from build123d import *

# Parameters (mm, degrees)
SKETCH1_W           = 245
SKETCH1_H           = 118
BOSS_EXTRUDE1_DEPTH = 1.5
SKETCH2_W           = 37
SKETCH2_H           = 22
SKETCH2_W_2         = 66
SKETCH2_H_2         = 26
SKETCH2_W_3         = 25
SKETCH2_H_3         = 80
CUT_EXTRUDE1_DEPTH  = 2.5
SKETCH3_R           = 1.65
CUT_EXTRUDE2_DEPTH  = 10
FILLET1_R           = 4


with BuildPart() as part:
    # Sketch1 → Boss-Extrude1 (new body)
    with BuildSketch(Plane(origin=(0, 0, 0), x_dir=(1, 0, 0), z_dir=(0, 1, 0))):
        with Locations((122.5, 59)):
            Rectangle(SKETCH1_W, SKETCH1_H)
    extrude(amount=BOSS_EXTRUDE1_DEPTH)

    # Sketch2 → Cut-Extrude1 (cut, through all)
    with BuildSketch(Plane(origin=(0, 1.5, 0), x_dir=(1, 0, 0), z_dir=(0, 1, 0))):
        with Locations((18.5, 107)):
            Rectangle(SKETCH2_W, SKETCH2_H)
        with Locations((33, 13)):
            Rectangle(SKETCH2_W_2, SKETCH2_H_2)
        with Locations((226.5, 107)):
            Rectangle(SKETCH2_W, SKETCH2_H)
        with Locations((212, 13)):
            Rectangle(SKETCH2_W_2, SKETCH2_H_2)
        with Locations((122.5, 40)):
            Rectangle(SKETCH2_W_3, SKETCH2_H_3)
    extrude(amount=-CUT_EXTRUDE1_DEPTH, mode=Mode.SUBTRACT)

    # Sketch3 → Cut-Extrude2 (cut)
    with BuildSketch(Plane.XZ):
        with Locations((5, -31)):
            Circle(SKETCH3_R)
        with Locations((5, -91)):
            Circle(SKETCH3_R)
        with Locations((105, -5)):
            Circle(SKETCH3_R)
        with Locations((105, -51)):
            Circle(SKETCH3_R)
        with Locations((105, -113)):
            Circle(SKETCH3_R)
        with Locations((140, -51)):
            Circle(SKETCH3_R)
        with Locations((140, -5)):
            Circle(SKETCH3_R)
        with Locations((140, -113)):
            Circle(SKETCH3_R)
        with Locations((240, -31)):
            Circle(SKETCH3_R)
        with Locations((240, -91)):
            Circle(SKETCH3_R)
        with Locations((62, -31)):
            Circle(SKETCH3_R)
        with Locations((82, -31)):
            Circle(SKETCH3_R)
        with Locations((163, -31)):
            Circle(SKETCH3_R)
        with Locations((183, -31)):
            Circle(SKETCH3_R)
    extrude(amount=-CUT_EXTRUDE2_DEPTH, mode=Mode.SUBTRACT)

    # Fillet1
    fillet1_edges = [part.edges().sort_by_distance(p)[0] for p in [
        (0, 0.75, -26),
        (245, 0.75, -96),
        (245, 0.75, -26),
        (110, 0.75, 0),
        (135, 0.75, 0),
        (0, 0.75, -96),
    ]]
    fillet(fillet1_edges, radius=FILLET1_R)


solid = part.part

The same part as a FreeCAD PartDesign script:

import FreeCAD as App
import Part
import Sketcher
from FreeCAD import Vector
Q = App.Units.Quantity


def edges_at(feature, points):
    """Names of the edges that pass closest to the given points."""
    edges = feature.Shape.Edges
    near = lambda p: min(range(len(edges)), key=lambda i: edges[i].distToShape(Part.Vertex(*p))[0])
    return sorted({f"Edge{near(p) + 1}" for p in points})


def add_polygon(sketch, points):
    """Adds a closed chain of lines whose ends are joined by coincident constraints."""
    first, n = sketch.GeometryCount, len(points)
    for a, b in zip(points, points[1:] + points[:1]):
        sketch.addGeometry(Part.LineSegment(App.Vector(*a, 0), App.Vector(*b, 0)), False)
    for i in range(n):
        sketch.addConstraint(Sketcher.Constraint("Coincident", first + i, 2, first + (i + 1) % n, 1))

doc = App.newDocument("Part")
body = doc.addObject("PartDesign::Body", "Body")

sketch1 = doc.addObject("Sketcher::SketchObject", "Sketch")
body.addObject(sketch1)
sketch1.AttachmentSupport = (doc.XZ_Plane, [""])
sketch1.MapMode = "FlatFace"
add_polygon(sketch1, [(0, -118), (0, 0), (245, 0), (245, -118)])
sketch1.addConstraint([
    Sketcher.Constraint("Vertical", 0),
    Sketcher.Constraint("Horizontal", 1),
    Sketcher.Constraint("Vertical", 2),
    Sketcher.Constraint("Horizontal", 3),
    Sketcher.Constraint("Coincident", 0, 2, -1, 1),
    Sketcher.Constraint("DistanceX", 1, 1, 1, 2, Q("245 mm")),
    Sketcher.Constraint("DistanceY", 0, 1, 0, 2, Q("118 mm")),
])
pad1 = doc.addObject("PartDesign::Pad", "Pad")
body.addObject(pad1)
pad1.Profile = sketch1
pad1.Length = 1.5
pad1.Reversed = True

sketch2 = doc.addObject("Sketcher::SketchObject", "Sketch001")
body.addObject(sketch2)
sketch2.AttachmentSupport = (doc.XZ_Plane, [""])
sketch2.MapMode = "FlatFace"
sketch2.AttachmentOffset = App.Placement(Vector(0, 0, -1.5), App.Rotation())
add_polygon(sketch2, [(0, -118), (0, -96), (37, -96), (37, -118)])
add_polygon(sketch2, [(0, -26), (0, 0), (66, 0), (66, -26)])
add_polygon(sketch2, [(208, -118), (208, -96), (245, -96), (245, -118)])
add_polygon(sketch2, [(179, -26), (179, 0), (245, 0), (245, -26)])
add_polygon(sketch2, [(110, -80), (110, 0), (135, 0), (135, -80)])
sketch2.addConstraint([
    Sketcher.Constraint("Vertical", 0),
    Sketcher.Constraint("Horizontal", 1),
    Sketcher.Constraint("Vertical", 2),
    Sketcher.Constraint("Horizontal", 3),
    Sketcher.Constraint("Vertical", 4),
    Sketcher.Constraint("Horizontal", 5),
    Sketcher.Constraint("Vertical", 6),
    Sketcher.Constraint("Horizontal", 7),
    Sketcher.Constraint("Vertical", 8),
    Sketcher.Constraint("Horizontal", 9),
    Sketcher.Constraint("Vertical", 10),
    Sketcher.Constraint("Horizontal", 11),
    Sketcher.Constraint("Vertical", 12),
    Sketcher.Constraint("Horizontal", 13),
    Sketcher.Constraint("Vertical", 14),
    Sketcher.Constraint("Horizontal", 15),
    Sketcher.Constraint("Vertical", 16),
    Sketcher.Constraint("Horizontal", 17),
    Sketcher.Constraint("Vertical", 18),
    Sketcher.Constraint("Horizontal", 19),
    Sketcher.Constraint("Coincident", 4, 2, -1, 1),
    Sketcher.Constraint("PointOnObject", 0, 2, -2),
    Sketcher.Constraint("PointOnObject", 12, 2, -1),
    Sketcher.Constraint("PointOnObject", 16, 2, -1),
    Sketcher.Constraint("Horizontal", 1, 2, 8, 2),
    Sketcher.Constraint("Horizontal", 3, 2, 10, 2),
    Sketcher.Constraint("Horizontal", 7, 2, 14, 2),
    Sketcher.Constraint("Vertical", 10, 2, 13, 2),
    Sketcher.Constraint("Equal", 3, 9),
    Sketcher.Constraint("Equal", 7, 13),
    Sketcher.Constraint("DistanceX", 1, 1, 1, 2, Q("37 mm")),
    Sketcher.Constraint("DistanceX", 5, 1, 5, 2, Q("66 mm")),
    Sketcher.Constraint("DistanceX", 17, 1, 17, 2, Q("25 mm")),
    Sketcher.Constraint("DistanceY", 0, 1, 0, 2, Q("22 mm")),
    Sketcher.Constraint("DistanceY", 4, 1, 4, 2, Q("26 mm")),
    Sketcher.Constraint("DistanceY", 16, 1, 16, 2, Q("80 mm")),
    Sketcher.Constraint("DistanceY", 0, 2, -1, 1, Q("96 mm")),
    Sketcher.Constraint("DistanceX", -1, 1, 8, 2, Q("208 mm")),
    Sketcher.Constraint("DistanceX", -1, 1, 16, 2, Q("110 mm")),
])
pocket1 = doc.addObject("PartDesign::Pocket", "Pocket")
body.addObject(pocket1)
pocket1.Profile = sketch2
pocket1.Type = "ThroughAll"
pocket1.Reversed = True

sketch3 = doc.addObject("Sketcher::SketchObject", "Sketch002")
body.addObject(sketch3)
sketch3.AttachmentSupport = (doc.XZ_Plane, [""])
sketch3.MapMode = "FlatFace"
sketch3.addGeometry([
    Part.Circle(Vector(5, -31, 0), Vector(0, 0, 1), 1.6),
    Part.Circle(Vector(5, -91, 0), Vector(0, 0, 1), 1.6),
    Part.Circle(Vector(105, -5, 0), Vector(0, 0, 1), 1.6),
    Part.Circle(Vector(105, -51, 0), Vector(0, 0, 1), 1.6),
    Part.Circle(Vector(105, -113, 0), Vector(0, 0, 1), 1.6),
    Part.Circle(Vector(140, -51, 0), Vector(0, 0, 1), 1.6),
    Part.Circle(Vector(140, -5, 0), Vector(0, 0, 1), 1.6),
    Part.Circle(Vector(140, -113, 0), Vector(0, 0, 1), 1.6),
    Part.Circle(Vector(240, -31, 0), Vector(0, 0, 1), 1.6),
    Part.Circle(Vector(240, -91, 0), Vector(0, 0, 1), 1.6),
    Part.Circle(Vector(62, -31, 0), Vector(0, 0, 1), 1.6),
    Part.Circle(Vector(82, -31, 0), Vector(0, 0, 1), 1.6),
    Part.Circle(Vector(163, -31, 0), Vector(0, 0, 1), 1.6),
    Part.Circle(Vector(183, -31, 0), Vector(0, 0, 1), 1.6),
], False)
sketch3.addConstraint([
    Sketcher.Constraint("Equal", 0, 1),
    Sketcher.Constraint("Equal", 1, 2),
    Sketcher.Constraint("Equal", 2, 3),
    Sketcher.Constraint("Equal", 3, 4),
    Sketcher.Constraint("Equal", 4, 5),
    Sketcher.Constraint("Equal", 5, 6),
    Sketcher.Constraint("Equal", 6, 7),
    Sketcher.Constraint("Equal", 7, 8),
    Sketcher.Constraint("Equal", 8, 9),
    Sketcher.Constraint("Equal", 9, 10),
    Sketcher.Constraint("Equal", 10, 11),
    Sketcher.Constraint("Equal", 11, 12),
    Sketcher.Constraint("Equal", 12, 13),
    Sketcher.Constraint("Horizontal", 3, 3, 5, 3),
    Sketcher.Constraint("Horizontal", 2, 3, 6, 3),
    Sketcher.Constraint("Horizontal", 4, 3, 7, 3),
    Sketcher.Constraint("Horizontal", 0, 3, 8, 3),
    Sketcher.Constraint("Horizontal", 1, 3, 9, 3),
    Sketcher.Constraint("Horizontal", 8, 3, 10, 3),
    Sketcher.Constraint("Horizontal", 10, 3, 11, 3),
    Sketcher.Constraint("Horizontal", 11, 3, 12, 3),
    Sketcher.Constraint("Horizontal", 12, 3, 13, 3),
    Sketcher.Constraint("Vertical", 0, 3, 1, 3),
    Sketcher.Constraint("Vertical", 2, 3, 3, 3),
    Sketcher.Constraint("Vertical", 3, 3, 4, 3),
    Sketcher.Constraint("Vertical", 5, 3, 6, 3),
    Sketcher.Constraint("Vertical", 6, 3, 7, 3),
    Sketcher.Constraint("Vertical", 8, 3, 9, 3),
    Sketcher.Constraint("Diameter", 0, Q("3.3 mm")),
    Sketcher.Constraint("DistanceX", -1, 1, 0, 3, Q("5 mm")),
    Sketcher.Constraint("DistanceY", 0, 3, -1, 1, Q("31 mm")),
    Sketcher.Constraint("DistanceY", 1, 3, -1, 1, Q("91 mm")),
    Sketcher.Constraint("DistanceX", -1, 1, 2, 3, Q("105 mm")),
    Sketcher.Constraint("DistanceY", 2, 3, -1, 1, Q("5 mm")),
    Sketcher.Constraint("DistanceY", 3, 3, -1, 1, Q("51 mm")),
    Sketcher.Constraint("DistanceY", 4, 3, -1, 1, Q("113 mm")),
    Sketcher.Constraint("DistanceX", -1, 1, 5, 3, Q("140 mm")),
    Sketcher.Constraint("DistanceX", -1, 1, 8, 3, Q("240 mm")),
    Sketcher.Constraint("DistanceX", -1, 1, 10, 3, Q("62 mm")),
    Sketcher.Constraint("DistanceX", -1, 1, 11, 3, Q("82 mm")),
    Sketcher.Constraint("DistanceX", -1, 1, 12, 3, Q("163 mm")),
    Sketcher.Constraint("DistanceX", -1, 1, 13, 3, Q("183 mm")),
])
pocket2 = doc.addObject("PartDesign::Pocket", "Pocket001")
body.addObject(pocket2)
pocket2.Profile = sketch3
pocket2.Length = 10
doc.recompute()

fillet = doc.addObject("PartDesign::Fillet", "Fillet")
body.addObject(fillet)
fillet.Base = (pocket2, edges_at(pocket2, [
    (0, 0.75, -26),
    (245, 0.75, -96),
    (245, 0.75, -26),
    (110, 0.75, 0),
    (135, 0.75, 0),
    (0, 0.75, -96),
]))
fillet.Radius = 4

doc.recompute()
